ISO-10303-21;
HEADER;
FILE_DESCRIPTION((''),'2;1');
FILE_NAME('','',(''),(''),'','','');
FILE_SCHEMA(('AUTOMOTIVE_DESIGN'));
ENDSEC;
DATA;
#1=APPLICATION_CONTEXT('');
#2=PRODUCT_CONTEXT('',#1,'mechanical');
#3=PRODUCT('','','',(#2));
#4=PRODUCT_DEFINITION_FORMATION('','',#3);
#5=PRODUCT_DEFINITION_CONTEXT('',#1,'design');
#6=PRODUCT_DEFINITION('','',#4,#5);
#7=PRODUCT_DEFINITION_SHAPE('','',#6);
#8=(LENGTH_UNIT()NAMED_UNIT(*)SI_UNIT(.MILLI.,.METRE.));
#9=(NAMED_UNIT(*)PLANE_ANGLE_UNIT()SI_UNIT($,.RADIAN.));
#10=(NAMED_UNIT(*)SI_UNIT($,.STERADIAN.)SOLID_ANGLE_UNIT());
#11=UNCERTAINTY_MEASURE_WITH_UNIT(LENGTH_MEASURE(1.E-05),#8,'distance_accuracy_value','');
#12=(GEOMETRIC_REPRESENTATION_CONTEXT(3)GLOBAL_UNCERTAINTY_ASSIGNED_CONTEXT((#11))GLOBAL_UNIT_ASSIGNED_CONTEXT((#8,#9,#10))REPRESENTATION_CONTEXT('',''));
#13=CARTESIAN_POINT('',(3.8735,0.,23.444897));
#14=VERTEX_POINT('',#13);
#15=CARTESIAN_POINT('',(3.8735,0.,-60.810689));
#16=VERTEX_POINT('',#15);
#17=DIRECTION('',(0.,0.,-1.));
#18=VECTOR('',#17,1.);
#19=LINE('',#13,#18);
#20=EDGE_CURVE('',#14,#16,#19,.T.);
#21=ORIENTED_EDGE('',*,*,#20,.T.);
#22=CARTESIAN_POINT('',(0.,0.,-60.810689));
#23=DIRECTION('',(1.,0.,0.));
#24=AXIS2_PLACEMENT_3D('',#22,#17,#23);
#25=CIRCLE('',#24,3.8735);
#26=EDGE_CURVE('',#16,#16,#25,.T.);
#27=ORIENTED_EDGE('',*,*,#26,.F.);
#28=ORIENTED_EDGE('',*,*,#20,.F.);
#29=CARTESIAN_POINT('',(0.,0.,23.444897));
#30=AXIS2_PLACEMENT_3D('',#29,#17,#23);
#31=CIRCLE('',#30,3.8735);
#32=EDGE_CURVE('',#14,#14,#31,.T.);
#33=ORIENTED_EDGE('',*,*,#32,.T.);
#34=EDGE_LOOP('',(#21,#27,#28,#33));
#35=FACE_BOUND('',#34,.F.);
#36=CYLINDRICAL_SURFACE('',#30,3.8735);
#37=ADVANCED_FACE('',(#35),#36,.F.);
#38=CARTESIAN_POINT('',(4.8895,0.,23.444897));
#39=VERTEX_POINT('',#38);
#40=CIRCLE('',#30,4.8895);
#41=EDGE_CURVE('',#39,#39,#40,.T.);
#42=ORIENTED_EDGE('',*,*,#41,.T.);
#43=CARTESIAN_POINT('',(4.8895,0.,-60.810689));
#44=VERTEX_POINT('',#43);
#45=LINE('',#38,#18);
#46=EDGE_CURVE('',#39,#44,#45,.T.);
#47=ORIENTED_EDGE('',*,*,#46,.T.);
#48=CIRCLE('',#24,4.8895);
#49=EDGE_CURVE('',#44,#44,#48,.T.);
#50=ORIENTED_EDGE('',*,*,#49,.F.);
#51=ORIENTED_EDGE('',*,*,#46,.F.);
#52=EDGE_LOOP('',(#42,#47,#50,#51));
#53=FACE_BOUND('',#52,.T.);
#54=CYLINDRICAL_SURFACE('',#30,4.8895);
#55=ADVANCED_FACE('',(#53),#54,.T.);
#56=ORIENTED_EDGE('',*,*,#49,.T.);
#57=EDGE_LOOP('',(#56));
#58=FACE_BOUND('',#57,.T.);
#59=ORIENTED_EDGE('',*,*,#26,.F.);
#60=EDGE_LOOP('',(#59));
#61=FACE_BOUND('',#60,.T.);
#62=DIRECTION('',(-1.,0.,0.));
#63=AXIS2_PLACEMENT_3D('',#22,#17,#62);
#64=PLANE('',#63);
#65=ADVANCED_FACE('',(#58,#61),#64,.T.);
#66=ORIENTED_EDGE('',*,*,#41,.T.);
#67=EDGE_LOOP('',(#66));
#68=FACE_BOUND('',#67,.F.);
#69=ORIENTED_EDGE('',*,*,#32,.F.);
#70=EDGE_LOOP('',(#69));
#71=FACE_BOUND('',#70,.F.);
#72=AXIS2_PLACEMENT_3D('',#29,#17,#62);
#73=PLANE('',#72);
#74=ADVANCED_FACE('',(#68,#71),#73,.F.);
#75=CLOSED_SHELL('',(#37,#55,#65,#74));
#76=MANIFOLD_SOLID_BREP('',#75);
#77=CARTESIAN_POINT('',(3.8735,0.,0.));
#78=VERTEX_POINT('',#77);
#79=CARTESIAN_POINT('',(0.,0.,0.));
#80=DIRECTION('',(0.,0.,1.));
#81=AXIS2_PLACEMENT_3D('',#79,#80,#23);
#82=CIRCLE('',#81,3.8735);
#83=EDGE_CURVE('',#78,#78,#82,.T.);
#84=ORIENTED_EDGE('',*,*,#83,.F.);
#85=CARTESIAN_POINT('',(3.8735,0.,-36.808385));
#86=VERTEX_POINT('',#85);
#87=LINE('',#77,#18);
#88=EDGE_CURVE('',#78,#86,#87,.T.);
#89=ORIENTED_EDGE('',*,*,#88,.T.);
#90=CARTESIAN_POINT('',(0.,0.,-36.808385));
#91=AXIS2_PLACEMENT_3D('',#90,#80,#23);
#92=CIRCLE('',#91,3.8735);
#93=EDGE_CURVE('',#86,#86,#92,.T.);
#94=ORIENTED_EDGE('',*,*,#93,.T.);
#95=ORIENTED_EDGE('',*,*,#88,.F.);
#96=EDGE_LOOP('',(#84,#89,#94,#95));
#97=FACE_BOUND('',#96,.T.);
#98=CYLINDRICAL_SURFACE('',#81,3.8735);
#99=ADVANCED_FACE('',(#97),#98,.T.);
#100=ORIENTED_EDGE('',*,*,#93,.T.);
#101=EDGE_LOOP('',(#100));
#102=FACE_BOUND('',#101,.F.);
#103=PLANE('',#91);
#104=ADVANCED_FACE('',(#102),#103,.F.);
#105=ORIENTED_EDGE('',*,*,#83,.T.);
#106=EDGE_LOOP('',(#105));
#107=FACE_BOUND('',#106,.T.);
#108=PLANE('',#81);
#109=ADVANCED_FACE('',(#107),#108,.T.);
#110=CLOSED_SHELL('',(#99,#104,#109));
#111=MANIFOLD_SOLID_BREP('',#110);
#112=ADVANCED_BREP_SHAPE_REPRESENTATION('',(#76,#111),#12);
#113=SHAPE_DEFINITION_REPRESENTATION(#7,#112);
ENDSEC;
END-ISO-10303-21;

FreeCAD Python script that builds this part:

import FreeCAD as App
import Part
import Sketcher
from FreeCAD import Vector
Q = App.Units.Quantity

doc = App.newDocument("Part")
body = doc.addObject("PartDesign::Body", "Body")

# Sketch on XY plane
sketch1 = doc.addObject("Sketcher::SketchObject", "Sketch")
body.addObject(sketch1)
sketch1.AttachmentSupport = (doc.XY_Plane, [""])
sketch1.MapMode = "FlatFace"
sketch1.AttachmentOffset = App.Placement(Vector(0, 0, 23.444897), App.Rotation())
sketch1.addGeometry([
    Part.Circle(Vector(0, 0, 0), Vector(0, 0, 1), 4.8895),
    Part.Circle(Vector(0, 0, 0), Vector(0, 0, 1), 3.8735),
], False)
sketch1.addConstraint([
    Sketcher.Constraint("Coincident", 0, 3, -1, 1),
    Sketcher.Constraint("Coincident", 1, 3, -1, 1),
    Sketcher.Constraint("Diameter", 0, Q("0.385 in")),
    Sketcher.Constraint("Diameter", 1, Q("0.305 in")),
])

# Sketch on XZ plane
sketch2 = doc.addObject("Sketcher::SketchObject", "Sketch001")
body.addObject(sketch2)
sketch2.AttachmentSupport = (doc.XZ_Plane, [""])
sketch2.MapMode = "FlatFace"
sketch2.addGeometry(Part.LineSegment(Vector(0, 23.444897, 0), Vector(0, -60.810689, 0)), False)
sketch2.addConstraint([
    Sketcher.Constraint("Vertical", 0),
    Sketcher.Constraint("PointOnObject", 0, 1, -2),
    Sketcher.Constraint("DistanceY", 0, 2, 0, 1, Q("84.255585 mm")),
    Sketcher.Constraint("DistanceY", 0, 2, -1, 1, Q("60.810689 mm")),
])
doc.recompute()

additivepipe = doc.addObject("PartDesign::AdditivePipe", "AdditivePipe")
body.addObject(additivepipe)
additivepipe.Profile = sketch1
additivepipe.Spine = (sketch2, ["Edge1"])
body2 = doc.addObject("PartDesign::Body", "Body001")

# Sketch on XY plane
sketch3 = doc.addObject("Sketcher::SketchObject", "Sketch002")
body2.addObject(sketch3)
sketch3.AttachmentSupport = (doc.getObject("XY_Plane001"), [""])
sketch3.MapMode = "FlatFace"
sketch3.addGeometry(Part.Circle(Vector(0, 0, 0), Vector(0, 0, 1), 3.8735), False)
sketch3.addConstraint([
    Sketcher.Constraint("Coincident", 0, 3, -1, 1),
    Sketcher.Constraint("Diameter", 0, Q("0.305 in")),
])
pad1 = doc.addObject("PartDesign::Pad", "Pad")
body2.addObject(pad1)
pad1.Profile = sketch3
pad1.Length = 36.808385
pad1.Reversed = True

doc.recompute()
